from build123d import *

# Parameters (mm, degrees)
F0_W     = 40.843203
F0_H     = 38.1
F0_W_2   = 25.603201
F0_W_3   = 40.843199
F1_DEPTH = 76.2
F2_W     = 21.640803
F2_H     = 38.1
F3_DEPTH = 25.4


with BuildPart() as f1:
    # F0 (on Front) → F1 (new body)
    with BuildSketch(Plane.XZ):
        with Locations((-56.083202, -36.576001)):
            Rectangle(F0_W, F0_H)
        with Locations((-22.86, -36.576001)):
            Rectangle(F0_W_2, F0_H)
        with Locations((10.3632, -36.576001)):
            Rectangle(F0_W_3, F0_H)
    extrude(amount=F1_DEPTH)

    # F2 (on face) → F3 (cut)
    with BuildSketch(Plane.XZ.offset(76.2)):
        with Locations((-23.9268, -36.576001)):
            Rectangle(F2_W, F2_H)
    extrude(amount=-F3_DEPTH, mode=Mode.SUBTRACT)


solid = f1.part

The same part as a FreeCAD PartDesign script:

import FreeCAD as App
import Part
import Sketcher

V = App.Vector
Q = App.Units.Quantity

doc = App.newDocument("Part")
params = doc.addObject("Spreadsheet::Sheet", "Params")
for row, (alias, value) in enumerate([
    ("sketch1_height", "1.5 in"),
    ("sketch1_width", "4.2240001 in"),
    ("pad1_length", "3 in"),
    ("sketch2_height", "1.5 in"),
    ("sketch2_width", "0.8520001 in"),
    ("pocket1_length", "1 in"),
], start=1):
    params.set(f"A{row}", alias)
    params.set(f"B{row}", "=" + value)
    params.setAlias(f"B{row}", alias)

body = doc.addObject("PartDesign::Body", "Body")

sketch1 = body.newObject("Sketcher::SketchObject", "Sketch")
sketch1.AttachmentSupport = (doc.getObject("XZ_Plane"), [""])
sketch1.MapMode = "FlatFace"
sketch1.addGeometry([
    Part.LineSegment(V(-77, -18, 0), V(-77, -56, 0)),
    Part.LineSegment(V(-77, -56, 0), V(31, -56, 0)),
    Part.LineSegment(V(31, -56, 0), V(31, -18, 0)),
    Part.LineSegment(V(31, -18, 0), V(-77, -18, 0)),
], False)
sketch1.addConstraint([
    Sketcher.Constraint("Coincident", 0, 2, 1, 1),
    Sketcher.Constraint("Coincident", 1, 2, 2, 1),
    Sketcher.Constraint("Coincident", 2, 2, 3, 1),
    Sketcher.Constraint("Coincident", 3, 2, 0, 1),
    Sketcher.Constraint("Vertical", 0),
    Sketcher.Constraint("Horizontal", 1),
    Sketcher.Constraint("Vertical", 2),
    Sketcher.Constraint("Horizontal", 3),
    Sketcher.Constraint("DistanceY", 0, 2, 0, 1, Q("1.5 in")),
    Sketcher.Constraint("DistanceX", 1, 1, 1, 2, Q("4.2240001 in")),
    Sketcher.Constraint("DistanceY", 0, 2, -1, 1, Q("2.19 in")),
    Sketcher.Constraint("DistanceX", 0, 2, -1, 1, Q("3.0120001 in")),
])
sketch1.setExpression("Constraints[8]", "Params.sketch1_height")
sketch1.setExpression("Constraints[9]", "Params.sketch1_width")
pad1 = body.newObject("PartDesign::Pad", "Pad")
pad1.Profile = sketch1
pad1.setExpression("Length", "Params.pad1_length")

sketch2 = body.newObject("Sketcher::SketchObject", "Sketch001")
sketch2.AttachmentSupport = (doc.getObject("XZ_Plane"), [""])
sketch2.MapMode = "FlatFace"
sketch2.AttachmentOffset = App.Placement(V(0, 0, 3 * 25.4), App.Rotation())
sketch2.addGeometry([
    Part.LineSegment(V(-35, -18, 0), V(-35, -56, 0)),
    Part.LineSegment(V(-35, -56, 0), V(-13, -56, 0)),
    Part.LineSegment(V(-13, -56, 0), V(-13, -18, 0)),
    Part.LineSegment(V(-13, -18, 0), V(-35, -18, 0)),
], False)
sketch2.addConstraint([
    Sketcher.Constraint("Coincident", 0, 2, 1, 1),
    Sketcher.Constraint("Coincident", 1, 2, 2, 1),
    Sketcher.Constraint("Coincident", 2, 2, 3, 1),
    Sketcher.Constraint("Coincident", 3, 2, 0, 1),
    Sketcher.Constraint("Vertical", 0),
    Sketcher.Constraint("Horizontal", 1),
    Sketcher.Constraint("Vertical", 2),
    Sketcher.Constraint("Horizontal", 3),
    Sketcher.Constraint("DistanceY", 0, 2, 0, 1, Q("1.5 in")),
    Sketcher.Constraint("DistanceX", 1, 1, 1, 2, Q("0.8520001 in")),
    Sketcher.Constraint("DistanceY", 0, 2, -1, 1, Q("2.19 in")),
    Sketcher.Constraint("DistanceX", 0, 2, -1, 1, Q("1.3680001 in")),
])
sketch2.setExpression("Constraints[8]", "Params.sketch2_height")
sketch2.setExpression("Constraints[9]", "Params.sketch2_width")
pocket1 = body.newObject("PartDesign::Pocket", "Pocket")
pocket1.Profile = sketch2
pocket1.setExpression("Length", "Params.pocket1_length")

doc.recompute()
